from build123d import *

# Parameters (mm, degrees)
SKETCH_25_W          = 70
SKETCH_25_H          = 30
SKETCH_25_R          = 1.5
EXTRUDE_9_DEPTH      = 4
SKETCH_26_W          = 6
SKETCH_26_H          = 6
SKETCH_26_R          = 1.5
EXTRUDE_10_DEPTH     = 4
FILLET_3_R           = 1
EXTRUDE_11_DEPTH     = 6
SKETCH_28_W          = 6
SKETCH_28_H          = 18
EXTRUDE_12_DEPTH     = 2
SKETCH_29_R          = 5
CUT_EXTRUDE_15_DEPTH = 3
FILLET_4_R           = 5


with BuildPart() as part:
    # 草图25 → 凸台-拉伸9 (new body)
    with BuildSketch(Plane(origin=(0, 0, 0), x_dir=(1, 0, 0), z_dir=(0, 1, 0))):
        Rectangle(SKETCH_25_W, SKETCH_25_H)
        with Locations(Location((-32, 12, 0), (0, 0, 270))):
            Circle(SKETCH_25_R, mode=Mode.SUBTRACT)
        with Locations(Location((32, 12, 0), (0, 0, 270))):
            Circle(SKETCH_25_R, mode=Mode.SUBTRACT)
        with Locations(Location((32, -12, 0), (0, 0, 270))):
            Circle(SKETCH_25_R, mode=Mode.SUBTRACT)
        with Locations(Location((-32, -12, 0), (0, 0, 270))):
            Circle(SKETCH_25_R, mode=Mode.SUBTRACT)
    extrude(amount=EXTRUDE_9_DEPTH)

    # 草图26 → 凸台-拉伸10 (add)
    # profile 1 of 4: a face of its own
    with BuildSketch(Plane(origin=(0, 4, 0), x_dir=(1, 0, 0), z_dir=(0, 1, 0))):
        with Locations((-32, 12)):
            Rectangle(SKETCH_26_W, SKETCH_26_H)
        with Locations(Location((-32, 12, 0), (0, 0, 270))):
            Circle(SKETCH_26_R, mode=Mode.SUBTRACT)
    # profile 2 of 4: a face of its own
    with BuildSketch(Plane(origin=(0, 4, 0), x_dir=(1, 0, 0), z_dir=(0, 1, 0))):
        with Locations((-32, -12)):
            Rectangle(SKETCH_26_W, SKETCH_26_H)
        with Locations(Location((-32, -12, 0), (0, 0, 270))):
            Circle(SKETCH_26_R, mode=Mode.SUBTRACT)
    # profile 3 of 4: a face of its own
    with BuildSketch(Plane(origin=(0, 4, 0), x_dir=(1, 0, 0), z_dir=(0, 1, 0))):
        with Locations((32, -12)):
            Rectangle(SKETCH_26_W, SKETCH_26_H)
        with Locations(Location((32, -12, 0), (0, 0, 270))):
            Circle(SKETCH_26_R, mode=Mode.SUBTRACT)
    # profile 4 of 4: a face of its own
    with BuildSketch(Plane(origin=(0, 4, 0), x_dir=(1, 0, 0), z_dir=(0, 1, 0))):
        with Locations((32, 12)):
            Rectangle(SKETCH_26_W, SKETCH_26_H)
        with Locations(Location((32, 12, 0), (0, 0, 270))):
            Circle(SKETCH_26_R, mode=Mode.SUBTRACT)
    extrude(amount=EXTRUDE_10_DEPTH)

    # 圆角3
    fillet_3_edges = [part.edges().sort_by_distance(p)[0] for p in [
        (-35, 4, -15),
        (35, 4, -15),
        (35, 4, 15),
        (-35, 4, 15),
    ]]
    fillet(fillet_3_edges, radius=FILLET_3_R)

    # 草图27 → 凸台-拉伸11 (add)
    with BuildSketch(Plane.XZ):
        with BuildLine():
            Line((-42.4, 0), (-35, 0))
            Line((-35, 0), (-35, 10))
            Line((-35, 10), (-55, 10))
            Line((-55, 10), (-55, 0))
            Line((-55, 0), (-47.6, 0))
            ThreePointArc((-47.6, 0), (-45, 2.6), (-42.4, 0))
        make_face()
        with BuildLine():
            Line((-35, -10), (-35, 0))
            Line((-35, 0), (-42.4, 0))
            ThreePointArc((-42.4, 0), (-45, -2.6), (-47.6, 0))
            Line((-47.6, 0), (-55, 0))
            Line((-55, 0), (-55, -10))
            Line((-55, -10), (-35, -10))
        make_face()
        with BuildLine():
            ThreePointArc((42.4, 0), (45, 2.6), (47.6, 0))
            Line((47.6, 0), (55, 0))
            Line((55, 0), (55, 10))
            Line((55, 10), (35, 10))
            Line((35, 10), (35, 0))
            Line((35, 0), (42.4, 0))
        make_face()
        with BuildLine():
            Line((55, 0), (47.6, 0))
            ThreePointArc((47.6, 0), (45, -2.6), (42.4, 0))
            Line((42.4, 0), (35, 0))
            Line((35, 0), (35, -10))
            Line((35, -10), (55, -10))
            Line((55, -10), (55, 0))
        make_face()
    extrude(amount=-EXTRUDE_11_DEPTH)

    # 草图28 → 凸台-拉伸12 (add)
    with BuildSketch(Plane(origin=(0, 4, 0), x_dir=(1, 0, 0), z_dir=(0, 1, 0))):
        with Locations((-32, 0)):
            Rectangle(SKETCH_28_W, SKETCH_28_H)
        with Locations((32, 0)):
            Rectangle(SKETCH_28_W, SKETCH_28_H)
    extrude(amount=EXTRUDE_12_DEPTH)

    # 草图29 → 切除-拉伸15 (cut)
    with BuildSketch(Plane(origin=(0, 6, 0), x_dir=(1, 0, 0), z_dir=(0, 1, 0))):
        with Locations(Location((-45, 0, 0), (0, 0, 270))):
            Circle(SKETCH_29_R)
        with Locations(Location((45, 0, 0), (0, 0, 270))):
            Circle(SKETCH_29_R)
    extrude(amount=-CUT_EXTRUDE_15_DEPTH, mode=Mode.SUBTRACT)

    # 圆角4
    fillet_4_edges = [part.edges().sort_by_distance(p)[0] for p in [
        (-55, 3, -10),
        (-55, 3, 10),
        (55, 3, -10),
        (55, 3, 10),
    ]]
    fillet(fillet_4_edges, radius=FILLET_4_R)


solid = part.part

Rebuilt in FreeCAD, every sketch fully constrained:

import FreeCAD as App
import Part
import Sketcher
Q = App.Units.Quantity


def edges_at(feature, points):
    """Names of the edges that pass closest to the given points."""
    edges = feature.Shape.Edges
    near = lambda p: min(range(len(edges)), key=lambda i: edges[i].distToShape(Part.Vertex(*p))[0])
    return sorted({f"Edge{near(p) + 1}" for p in points})

doc = App.newDocument("Part")
body = doc.addObject("PartDesign::Body", "Body")

sketch1 = body.newObject("Sketcher::SketchObject", "Sketch")
sketch1.AttachmentSupport = (doc.getObject("XZ_Plane"), [""])
sketch1.MapMode = "FlatFace"
sketch1.addGeometry(Part.LineSegment(App.Vector(-35, -15, 0), App.Vector(-35, 15, 0)), False)
sketch1.addGeometry(Part.LineSegment(App.Vector(-35, 15, 0), App.Vector(35, 15, 0)), False)
sketch1.addGeometry(Part.LineSegment(App.Vector(35, 15, 0), App.Vector(35, -15, 0)), False)
sketch1.addGeometry(Part.LineSegment(App.Vector(35, -15, 0), App.Vector(-35, -15, 0)), False)
sketch1.addGeometry(Part.Circle(App.Vector(-32, 12, 0), App.Vector(0, 0, 1), 1.5), False)
sketch1.addGeometry(Part.Circle(App.Vector(32, 12, 0), App.Vector(0, 0, 1), 1.5), False)
sketch1.addGeometry(Part.Circle(App.Vector(-32, -12, 0), App.Vector(0, 0, 1), 1.5), False)
sketch1.addGeometry(Part.Circle(App.Vector(32, -12, 0), App.Vector(0, 0, 1), 1.5), False)
sketch1.addConstraint(Sketcher.Constraint("Coincident", 0, 2, 1, 1))
sketch1.addConstraint(Sketcher.Constraint("Coincident", 1, 2, 2, 1))
sketch1.addConstraint(Sketcher.Constraint("Coincident", 2, 2, 3, 1))
sketch1.addConstraint(Sketcher.Constraint("Coincident", 3, 2, 0, 1))
sketch1.addConstraint(Sketcher.Constraint("Vertical", 0))
sketch1.addConstraint(Sketcher.Constraint("Horizontal", 1))
sketch1.addConstraint(Sketcher.Constraint("Vertical", 2))
sketch1.addConstraint(Sketcher.Constraint("Horizontal", 3))
sketch1.addConstraint(Sketcher.Constraint("Equal", 4, 5))
sketch1.addConstraint(Sketcher.Constraint("Equal", 5, 6))
sketch1.addConstraint(Sketcher.Constraint("Equal", 6, 7))
sketch1.addConstraint(Sketcher.Constraint("Symmetric", 5, 3, 6, 3, -1, 1))
sketch1.addConstraint(Sketcher.Constraint("Symmetric", 4, 3, 7, 3, -1, 1))
sketch1.addConstraint(Sketcher.Constraint("Symmetric", 0, 2, 2, 2, -1, 1))
sketch1.addConstraint(Sketcher.Constraint("Symmetric", 4, 3, 5, 3, -2))
sketch1.addConstraint(Sketcher.Constraint("Diameter", 4, Q("3 mm")))
sketch1.addConstraint(Sketcher.Constraint("DistanceX", 1, 1, 1, 2, Q("70 mm")))
sketch1.addConstraint(Sketcher.Constraint("DistanceY", 0, 1, 0, 2, Q("30 mm")))
sketch1.addConstraint(Sketcher.Constraint("DistanceX", 4, 3, -1, 1, Q("32 mm")))
sketch1.addConstraint(Sketcher.Constraint("DistanceY", -1, 1, 4, 3, Q("12 mm")))
pad1 = body.newObject("PartDesign::Pad", "Pad")
pad1.Profile = sketch1
pad1.Length = 4
pad1.Reversed = True

sketch2 = body.newObject("Sketcher::SketchObject", "Sketch001")
sketch2.AttachmentSupport = (doc.getObject("XZ_Plane"), [""])
sketch2.MapMode = "FlatFace"
sketch2.AttachmentOffset = App.Placement(App.Vector(0, 0, -4), App.Rotation())
sketch2.addGeometry(Part.LineSegment(App.Vector(-35, -15, 0), App.Vector(-35, -9, 0)), False)
sketch2.addGeometry(Part.LineSegment(App.Vector(-35, -9, 0), App.Vector(-29, -9, 0)), False)
sketch2.addGeometry(Part.LineSegment(App.Vector(-29, -9, 0), App.Vector(-29, -15, 0)), False)
sketch2.addGeometry(Part.LineSegment(App.Vector(-29, -15, 0), App.Vector(-35, -15, 0)), False)
sketch2.addGeometry(Part.Circle(App.Vector(-32, -12, 0), App.Vector(0, 0, 1), 1.5), False)
sketch2.addGeometry(Part.LineSegment(App.Vector(-35, 9, 0), App.Vector(-35, 15, 0)), False)
sketch2.addGeometry(Part.LineSegment(App.Vector(-35, 15, 0), App.Vector(-29, 15, 0)), False)
sketch2.addGeometry(Part.LineSegment(App.Vector(-29, 15, 0), App.Vector(-29, 9, 0)), False)
sketch2.addGeometry(Part.LineSegment(App.Vector(-29, 9, 0), App.Vector(-35, 9, 0)), False)
sketch2.addGeometry(Part.Circle(App.Vector(-32, 12, 0), App.Vector(0, 0, 1), 1.5), False)
sketch2.addGeometry(Part.LineSegment(App.Vector(29, 9, 0), App.Vector(29, 15, 0)), False)
sketch2.addGeometry(Part.LineSegment(App.Vector(29, 15, 0), App.Vector(35, 15, 0)), False)
sketch2.addGeometry(Part.LineSegment(App.Vector(35, 15, 0), App.Vector(35, 9, 0)), False)
sketch2.addGeometry(Part.LineSegment(App.Vector(35, 9, 0), App.Vector(29, 9, 0)), False)
sketch2.addGeometry(Part.Circle(App.Vector(32, 12, 0), App.Vector(0, 0, 1), 1.5), False)
sketch2.addGeometry(Part.LineSegment(App.Vector(29, -15, 0), App.Vector(29, -9, 0)), False)
sketch2.addGeometry(Part.LineSegment(App.Vector(29, -9, 0), App.Vector(35, -9, 0)), False)
sketch2.addGeometry(Part.LineSegment(App.Vector(35, -9, 0), App.Vector(35, -15, 0)), False)
sketch2.addGeometry(Part.LineSegment(App.Vector(35, -15, 0), App.Vector(29, -15, 0)), False)
sketch2.addGeometry(Part.Circle(App.Vector(32, -12, 0), App.Vector(0, 0, 1), 1.5), False)
sketch2.addConstraint(Sketcher.Constraint("Coincident", 0, 2, 1, 1))
sketch2.addConstraint(Sketcher.Constraint("Coincident", 1, 2, 2, 1))
sketch2.addConstraint(Sketcher.Constraint("Coincident", 2, 2, 3, 1))
sketch2.addConstraint(Sketcher.Constraint("Coincident", 3, 2, 0, 1))
sketch2.addConstraint(Sketcher.Constraint("Coincident", 5, 2, 6, 1))
sketch2.addConstraint(Sketcher.Constraint("Coincident", 6, 2, 7, 1))
sketch2.addConstraint(Sketcher.Constraint("Coincident", 7, 2, 8, 1))
sketch2.addConstraint(Sketcher.Constraint("Coincident", 8, 2, 5, 1))
sketch2.addConstraint(Sketcher.Constraint("Coincident", 10, 2, 11, 1))
sketch2.addConstraint(Sketcher.Constraint("Coincident", 11, 2, 12, 1))
sketch2.addConstraint(Sketcher.Constraint("Coincident", 12, 2, 13, 1))
sketch2.addConstraint(Sketcher.Constraint("Coincident", 13, 2, 10, 1))
sketch2.addConstraint(Sketcher.Constraint("Coincident", 15, 2, 16, 1))
sketch2.addConstraint(Sketcher.Constraint("Coincident", 16, 2, 17, 1))
sketch2.addConstraint(Sketcher.Constraint("Coincident", 17, 2, 18, 1))
sketch2.addConstraint(Sketcher.Constraint("Coincident", 18, 2, 15, 1))
sketch2.addConstraint(Sketcher.Constraint("Vertical", 0))
sketch2.addConstraint(Sketcher.Constraint("Horizontal", 1))
sketch2.addConstraint(Sketcher.Constraint("Vertical", 2))
sketch2.addConstraint(Sketcher.Constraint("Horizontal", 3))
sketch2.addConstraint(Sketcher.Constraint("Vertical", 5))
sketch2.addConstraint(Sketcher.Constraint("Horizontal", 6))
sketch2.addConstraint(Sketcher.Constraint("Vertical", 7))
sketch2.addConstraint(Sketcher.Constraint("Horizontal", 8))
sketch2.addConstraint(Sketcher.Constraint("Vertical", 10))
sketch2.addConstraint(Sketcher.Constraint("Horizontal", 11))
sketch2.addConstraint(Sketcher.Constraint("Vertical", 12))
sketch2.addConstraint(Sketcher.Constraint("Horizontal", 13))
sketch2.addConstraint(Sketcher.Constraint("Vertical", 15))
sketch2.addConstraint(Sketcher.Constraint("Horizontal", 16))
sketch2.addConstraint(Sketcher.Constraint("Vertical", 17))
sketch2.addConstraint(Sketcher.Constraint("Horizontal", 18))
sketch2.addConstraint(Sketcher.Constraint("Equal", 4, 9))
sketch2.addConstraint(Sketcher.Constraint("Equal", 9, 14))
sketch2.addConstraint(Sketcher.Constraint("Equal", 14, 19))
sketch2.addConstraint(Sketcher.Constraint("Symmetric", 4, 3, 14, 3, -1, 1))
sketch2.addConstraint(Sketcher.Constraint("Symmetric", 9, 3, 19, 3, -1, 1))
sketch2.addConstraint(Sketcher.Constraint("Symmetric", 2, 2, 10, 2, -1, 1))
sketch2.addConstraint(Sketcher.Constraint("Symmetric", 0, 2, 12, 2, -1, 1))
sketch2.addConstraint(Sketcher.Constraint("Symmetric", 7, 2, 15, 2, -1, 1))
sketch2.addConstraint(Sketcher.Constraint("Symmetric", 5, 2, 17, 2, -1, 1))
sketch2.addConstraint(Sketcher.Constraint("Symmetric", 9, 3, 14, 3, -2))
sketch2.addConstraint(Sketcher.Constraint("Symmetric", 6, 2, 10, 2, -2))
sketch2.addConstraint(Sketcher.Constraint("Symmetric", 8, 2, 12, 2, -2))
sketch2.addConstraint(Sketcher.Constraint("Equal", 18, 0))
sketch2.addConstraint(Sketcher.Constraint("Diameter", 4, Q("3 mm")))
sketch2.addConstraint(Sketcher.Constraint("DistanceX", 1, 1, 1, 2, Q("6 mm")))
sketch2.addConstraint(Sketcher.Constraint("DistanceX", 4, 3, -1, 1, Q("32 mm")))
sketch2.addConstraint(Sketcher.Constraint("DistanceY", 4, 3, -1, 1, Q("12 mm")))
sketch2.addConstraint(Sketcher.Constraint("DistanceX", 0, 2, -1, 1, Q("35 mm")))
sketch2.addConstraint(Sketcher.Constraint("DistanceY", 0, 2, -1, 1, Q("9 mm")))
pad2 = body.newObject("PartDesign::Pad", "Pad001")
pad2.Profile = sketch2
pad2.Length = 4
pad2.Reversed = True
doc.recompute()

fillet = body.newObject("PartDesign::Fillet", "Fillet")
fillet.Base = (pad2, edges_at(pad2, [
    (-35, 4, -15),
    (35, 4, -15),
    (35, 4, 15),
    (-35, 4, 15),
]))
fillet.Radius = 1

sketch3 = body.newObject("Sketcher::SketchObject", "Sketch002")
sketch3.AttachmentSupport = (doc.getObject("XZ_Plane"), [""])
sketch3.MapMode = "FlatFace"
sketch3.addGeometry(Part.LineSegment(App.Vector(-35, 10, 0), App.Vector(-55, 10, 0)), False)
sketch3.addGeometry(Part.LineSegment(App.Vector(-55, 10, 0), App.Vector(-55, -10, 0)), False)
sketch3.addGeometry(Part.LineSegment(App.Vector(-55, -10, 0), App.Vector(-35, -10, 0)), False)
sketch3.addGeometry(Part.LineSegment(App.Vector(-35, -10, 0), App.Vector(-35, 10, 0)), False)
sketch3.addGeometry(Part.Circle(App.Vector(-45, 0, 0), App.Vector(0, 0, 1), 2.6), False)
sketch3.addGeometry(Part.LineSegment(App.Vector(55, 10, 0), App.Vector(35, 10, 0)), False)
sketch3.addGeometry(Part.LineSegment(App.Vector(35, 10, 0), App.Vector(35, -10, 0)), False)
sketch3.addGeometry(Part.LineSegment(App.Vector(35, -10, 0), App.Vector(55, -10, 0)), False)
sketch3.addGeometry(Part.LineSegment(App.Vector(55, -10, 0), App.Vector(55, 10, 0)), False)
sketch3.addGeometry(Part.Circle(App.Vector(45, 0, 0), App.Vector(0, 0, 1), 2.6), False)
sketch3.addConstraint(Sketcher.Constraint("Coincident", 0, 2, 1, 1))
sketch3.addConstraint(Sketcher.Constraint("Coincident", 1, 2, 2, 1))
sketch3.addConstraint(Sketcher.Constraint("Coincident", 2, 2, 3, 1))
sketch3.addConstraint(Sketcher.Constraint("Coincident", 3, 2, 0, 1))
sketch3.addConstraint(Sketcher.Constraint("Coincident", 5, 2, 6, 1))
sketch3.addConstraint(Sketcher.Constraint("Coincident", 6, 2, 7, 1))
sketch3.addConstraint(Sketcher.Constraint("Coincident", 7, 2, 8, 1))
sketch3.addConstraint(Sketcher.Constraint("Coincident", 8, 2, 5, 1))
sketch3.addConstraint(Sketcher.Constraint("Horizontal", 0))
sketch3.addConstraint(Sketcher.Constraint("Vertical", 1))
sketch3.addConstraint(Sketcher.Constraint("Horizontal", 2))
sketch3.addConstraint(Sketcher.Constraint("Vertical", 3))
sketch3.addConstraint(Sketcher.Constraint("Horizontal", 5))
sketch3.addConstraint(Sketcher.Constraint("Vertical", 6))
sketch3.addConstraint(Sketcher.Constraint("Horizontal", 7))
sketch3.addConstraint(Sketcher.Constraint("Vertical", 8))
sketch3.addConstraint(Sketcher.Constraint("Equal", 4, 9))
sketch3.addConstraint(Sketcher.Constraint("Symmetric", 4, 3, 9, 3, -1, 1))
sketch3.addConstraint(Sketcher.Constraint("Symmetric", 2, 2, 5, 2, -1, 1))
sketch3.addConstraint(Sketcher.Constraint("Symmetric", 0, 2, 7, 2, -1, 1))
sketch3.addConstraint(Sketcher.Constraint("PointOnObject", 4, 3, -1))
sketch3.addConstraint(Sketcher.Constraint("Horizontal", 3, 2, 5, 2))
sketch3.addConstraint(Sketcher.Constraint("Equal", 7, 1))
sketch3.addConstraint(Sketcher.Constraint("Diameter", 4, Q("5.2 mm")))
sketch3.addConstraint(Sketcher.Constraint("DistanceX", 0, 2, 0, 1, Q("20 mm")))
sketch3.addConstraint(Sketcher.Constraint("DistanceX", 4, 3, -1, 1, Q("45 mm")))
sketch3.addConstraint(Sketcher.Constraint("DistanceX", 0, 2, -1, 1, Q("55 mm")))
pad3 = body.newObject("PartDesign::Pad", "Pad002")
pad3.Profile = sketch3
pad3.Length = 6
pad3.Reversed = True

sketch4 = body.newObject("Sketcher::SketchObject", "Sketch003")
sketch4.AttachmentSupport = (doc.getObject("XZ_Plane"), [""])
sketch4.MapMode = "FlatFace"
sketch4.AttachmentOffset = App.Placement(App.Vector(0, 0, -4), App.Rotation())
sketch4.addGeometry(Part.LineSegment(App.Vector(-35, -9, 0), App.Vector(-35, 9, 0)), False)
sketch4.addGeometry(Part.LineSegment(App.Vector(-35, 9, 0), App.Vector(-29, 9, 0)), False)
sketch4.addGeometry(Part.LineSegment(App.Vector(-29, 9, 0), App.Vector(-29, -9, 0)), False)
sketch4.addGeometry(Part.LineSegment(App.Vector(-29, -9, 0), App.Vector(-35, -9, 0)), False)
sketch4.addGeometry(Part.LineSegment(App.Vector(29, -9, 0), App.Vector(29, 9, 0)), False)
sketch4.addGeometry(Part.LineSegment(App.Vector(29, 9, 0), App.Vector(35, 9, 0)), False)
sketch4.addGeometry(Part.LineSegment(App.Vector(35, 9, 0), App.Vector(35, -9, 0)), False)
sketch4.addGeometry(Part.LineSegment(App.Vector(35, -9, 0), App.Vector(29, -9, 0)), False)
sketch4.addConstraint(Sketcher.Constraint("Coincident", 0, 2, 1, 1))
sketch4.addConstraint(Sketcher.Constraint("Coincident", 1, 2, 2, 1))
sketch4.addConstraint(Sketcher.Constraint("Coincident", 2, 2, 3, 1))
sketch4.addConstraint(Sketcher.Constraint("Coincident", 3, 2, 0, 1))
sketch4.addConstraint(Sketcher.Constraint("Coincident", 4, 2, 5, 1))
sketch4.addConstraint(Sketcher.Constraint("Coincident", 5, 2, 6, 1))
sketch4.addConstraint(Sketcher.Constraint("Coincident", 6, 2, 7, 1))
sketch4.addConstraint(Sketcher.Constraint("Coincident", 7, 2, 4, 1))
sketch4.addConstraint(Sketcher.Constraint("Vertical", 0))
sketch4.addConstraint(Sketcher.Constraint("Horizontal", 1))
sketch4.addConstraint(Sketcher.Constraint("Vertical", 2))
sketch4.addConstraint(Sketcher.Constraint("Horizontal", 3))
sketch4.addConstraint(Sketcher.Constraint("Vertical", 4))
sketch4.addConstraint(Sketcher.Constraint("Horizontal", 5))
sketch4.addConstraint(Sketcher.Constraint("Vertical", 6))
sketch4.addConstraint(Sketcher.Constraint("Horizontal", 7))
sketch4.addConstraint(Sketcher.Constraint("Symmetric", 2, 2, 4, 2, -1, 1))
sketch4.addConstraint(Sketcher.Constraint("Symmetric", 0, 2, 6, 2, -1, 1))
sketch4.addConstraint(Sketcher.Constraint("Horizontal", 1, 2, 4, 2))
sketch4.addConstraint(Sketcher.Constraint("DistanceX", 1, 1, 1, 2, Q("6 mm")))
sketch4.addConstraint(Sketcher.Constraint("DistanceY", 0, 1, 0, 2, Q("18 mm")))
sketch4.addConstraint(Sketcher.Constraint("DistanceX", 0, 2, -1, 1, Q("35 mm")))
pad4 = body.newObject("PartDesign::Pad", "Pad003")
pad4.Profile = sketch4
pad4.Length = 2
pad4.Reversed = True

sketch5 = body.newObject("Sketcher::SketchObject", "Sketch004")
sketch5.AttachmentSupport = (doc.getObject("XZ_Plane"), [""])
sketch5.MapMode = "FlatFace"
sketch5.AttachmentOffset = App.Placement(App.Vector(0, 0, -6), App.Rotation())
sketch5.addGeometry(Part.Circle(App.Vector(-45, 0, 0), App.Vector(0, 0, 1), 5), False)
sketch5.addGeometry(Part.Circle(App.Vector(45, 0, 0), App.Vector(0, 0, 1), 5), False)
sketch5.addConstraint(Sketcher.Constraint("Equal", 0, 1))
sketch5.addConstraint(Sketcher.Constraint("Symmetric", 0, 3, 1, 3, -1, 1))
sketch5.addConstraint(Sketcher.Constraint("PointOnObject", 0, 3, -1))
sketch5.addConstraint(Sketcher.Constraint("Diameter", 0, Q("10 mm")))
sketch5.addConstraint(Sketcher.Constraint("DistanceX", 0, 3, -1, 1, Q("45 mm")))
pocket1 = body.newObject("PartDesign::Pocket", "Pocket")
pocket1.Profile = sketch5
pocket1.Length = 3
pocket1.Reversed = True
doc.recompute()

fillet2 = body.newObject("PartDesign::Fillet", "Fillet001")
fillet2.Base = (pocket1, edges_at(pocket1, [
    (-55, 3, -10),
    (-55, 3, 10),
    (55, 3, -10),
    (55, 3, 10),
]))
fillet2.Radius = 5

doc.recompute()
